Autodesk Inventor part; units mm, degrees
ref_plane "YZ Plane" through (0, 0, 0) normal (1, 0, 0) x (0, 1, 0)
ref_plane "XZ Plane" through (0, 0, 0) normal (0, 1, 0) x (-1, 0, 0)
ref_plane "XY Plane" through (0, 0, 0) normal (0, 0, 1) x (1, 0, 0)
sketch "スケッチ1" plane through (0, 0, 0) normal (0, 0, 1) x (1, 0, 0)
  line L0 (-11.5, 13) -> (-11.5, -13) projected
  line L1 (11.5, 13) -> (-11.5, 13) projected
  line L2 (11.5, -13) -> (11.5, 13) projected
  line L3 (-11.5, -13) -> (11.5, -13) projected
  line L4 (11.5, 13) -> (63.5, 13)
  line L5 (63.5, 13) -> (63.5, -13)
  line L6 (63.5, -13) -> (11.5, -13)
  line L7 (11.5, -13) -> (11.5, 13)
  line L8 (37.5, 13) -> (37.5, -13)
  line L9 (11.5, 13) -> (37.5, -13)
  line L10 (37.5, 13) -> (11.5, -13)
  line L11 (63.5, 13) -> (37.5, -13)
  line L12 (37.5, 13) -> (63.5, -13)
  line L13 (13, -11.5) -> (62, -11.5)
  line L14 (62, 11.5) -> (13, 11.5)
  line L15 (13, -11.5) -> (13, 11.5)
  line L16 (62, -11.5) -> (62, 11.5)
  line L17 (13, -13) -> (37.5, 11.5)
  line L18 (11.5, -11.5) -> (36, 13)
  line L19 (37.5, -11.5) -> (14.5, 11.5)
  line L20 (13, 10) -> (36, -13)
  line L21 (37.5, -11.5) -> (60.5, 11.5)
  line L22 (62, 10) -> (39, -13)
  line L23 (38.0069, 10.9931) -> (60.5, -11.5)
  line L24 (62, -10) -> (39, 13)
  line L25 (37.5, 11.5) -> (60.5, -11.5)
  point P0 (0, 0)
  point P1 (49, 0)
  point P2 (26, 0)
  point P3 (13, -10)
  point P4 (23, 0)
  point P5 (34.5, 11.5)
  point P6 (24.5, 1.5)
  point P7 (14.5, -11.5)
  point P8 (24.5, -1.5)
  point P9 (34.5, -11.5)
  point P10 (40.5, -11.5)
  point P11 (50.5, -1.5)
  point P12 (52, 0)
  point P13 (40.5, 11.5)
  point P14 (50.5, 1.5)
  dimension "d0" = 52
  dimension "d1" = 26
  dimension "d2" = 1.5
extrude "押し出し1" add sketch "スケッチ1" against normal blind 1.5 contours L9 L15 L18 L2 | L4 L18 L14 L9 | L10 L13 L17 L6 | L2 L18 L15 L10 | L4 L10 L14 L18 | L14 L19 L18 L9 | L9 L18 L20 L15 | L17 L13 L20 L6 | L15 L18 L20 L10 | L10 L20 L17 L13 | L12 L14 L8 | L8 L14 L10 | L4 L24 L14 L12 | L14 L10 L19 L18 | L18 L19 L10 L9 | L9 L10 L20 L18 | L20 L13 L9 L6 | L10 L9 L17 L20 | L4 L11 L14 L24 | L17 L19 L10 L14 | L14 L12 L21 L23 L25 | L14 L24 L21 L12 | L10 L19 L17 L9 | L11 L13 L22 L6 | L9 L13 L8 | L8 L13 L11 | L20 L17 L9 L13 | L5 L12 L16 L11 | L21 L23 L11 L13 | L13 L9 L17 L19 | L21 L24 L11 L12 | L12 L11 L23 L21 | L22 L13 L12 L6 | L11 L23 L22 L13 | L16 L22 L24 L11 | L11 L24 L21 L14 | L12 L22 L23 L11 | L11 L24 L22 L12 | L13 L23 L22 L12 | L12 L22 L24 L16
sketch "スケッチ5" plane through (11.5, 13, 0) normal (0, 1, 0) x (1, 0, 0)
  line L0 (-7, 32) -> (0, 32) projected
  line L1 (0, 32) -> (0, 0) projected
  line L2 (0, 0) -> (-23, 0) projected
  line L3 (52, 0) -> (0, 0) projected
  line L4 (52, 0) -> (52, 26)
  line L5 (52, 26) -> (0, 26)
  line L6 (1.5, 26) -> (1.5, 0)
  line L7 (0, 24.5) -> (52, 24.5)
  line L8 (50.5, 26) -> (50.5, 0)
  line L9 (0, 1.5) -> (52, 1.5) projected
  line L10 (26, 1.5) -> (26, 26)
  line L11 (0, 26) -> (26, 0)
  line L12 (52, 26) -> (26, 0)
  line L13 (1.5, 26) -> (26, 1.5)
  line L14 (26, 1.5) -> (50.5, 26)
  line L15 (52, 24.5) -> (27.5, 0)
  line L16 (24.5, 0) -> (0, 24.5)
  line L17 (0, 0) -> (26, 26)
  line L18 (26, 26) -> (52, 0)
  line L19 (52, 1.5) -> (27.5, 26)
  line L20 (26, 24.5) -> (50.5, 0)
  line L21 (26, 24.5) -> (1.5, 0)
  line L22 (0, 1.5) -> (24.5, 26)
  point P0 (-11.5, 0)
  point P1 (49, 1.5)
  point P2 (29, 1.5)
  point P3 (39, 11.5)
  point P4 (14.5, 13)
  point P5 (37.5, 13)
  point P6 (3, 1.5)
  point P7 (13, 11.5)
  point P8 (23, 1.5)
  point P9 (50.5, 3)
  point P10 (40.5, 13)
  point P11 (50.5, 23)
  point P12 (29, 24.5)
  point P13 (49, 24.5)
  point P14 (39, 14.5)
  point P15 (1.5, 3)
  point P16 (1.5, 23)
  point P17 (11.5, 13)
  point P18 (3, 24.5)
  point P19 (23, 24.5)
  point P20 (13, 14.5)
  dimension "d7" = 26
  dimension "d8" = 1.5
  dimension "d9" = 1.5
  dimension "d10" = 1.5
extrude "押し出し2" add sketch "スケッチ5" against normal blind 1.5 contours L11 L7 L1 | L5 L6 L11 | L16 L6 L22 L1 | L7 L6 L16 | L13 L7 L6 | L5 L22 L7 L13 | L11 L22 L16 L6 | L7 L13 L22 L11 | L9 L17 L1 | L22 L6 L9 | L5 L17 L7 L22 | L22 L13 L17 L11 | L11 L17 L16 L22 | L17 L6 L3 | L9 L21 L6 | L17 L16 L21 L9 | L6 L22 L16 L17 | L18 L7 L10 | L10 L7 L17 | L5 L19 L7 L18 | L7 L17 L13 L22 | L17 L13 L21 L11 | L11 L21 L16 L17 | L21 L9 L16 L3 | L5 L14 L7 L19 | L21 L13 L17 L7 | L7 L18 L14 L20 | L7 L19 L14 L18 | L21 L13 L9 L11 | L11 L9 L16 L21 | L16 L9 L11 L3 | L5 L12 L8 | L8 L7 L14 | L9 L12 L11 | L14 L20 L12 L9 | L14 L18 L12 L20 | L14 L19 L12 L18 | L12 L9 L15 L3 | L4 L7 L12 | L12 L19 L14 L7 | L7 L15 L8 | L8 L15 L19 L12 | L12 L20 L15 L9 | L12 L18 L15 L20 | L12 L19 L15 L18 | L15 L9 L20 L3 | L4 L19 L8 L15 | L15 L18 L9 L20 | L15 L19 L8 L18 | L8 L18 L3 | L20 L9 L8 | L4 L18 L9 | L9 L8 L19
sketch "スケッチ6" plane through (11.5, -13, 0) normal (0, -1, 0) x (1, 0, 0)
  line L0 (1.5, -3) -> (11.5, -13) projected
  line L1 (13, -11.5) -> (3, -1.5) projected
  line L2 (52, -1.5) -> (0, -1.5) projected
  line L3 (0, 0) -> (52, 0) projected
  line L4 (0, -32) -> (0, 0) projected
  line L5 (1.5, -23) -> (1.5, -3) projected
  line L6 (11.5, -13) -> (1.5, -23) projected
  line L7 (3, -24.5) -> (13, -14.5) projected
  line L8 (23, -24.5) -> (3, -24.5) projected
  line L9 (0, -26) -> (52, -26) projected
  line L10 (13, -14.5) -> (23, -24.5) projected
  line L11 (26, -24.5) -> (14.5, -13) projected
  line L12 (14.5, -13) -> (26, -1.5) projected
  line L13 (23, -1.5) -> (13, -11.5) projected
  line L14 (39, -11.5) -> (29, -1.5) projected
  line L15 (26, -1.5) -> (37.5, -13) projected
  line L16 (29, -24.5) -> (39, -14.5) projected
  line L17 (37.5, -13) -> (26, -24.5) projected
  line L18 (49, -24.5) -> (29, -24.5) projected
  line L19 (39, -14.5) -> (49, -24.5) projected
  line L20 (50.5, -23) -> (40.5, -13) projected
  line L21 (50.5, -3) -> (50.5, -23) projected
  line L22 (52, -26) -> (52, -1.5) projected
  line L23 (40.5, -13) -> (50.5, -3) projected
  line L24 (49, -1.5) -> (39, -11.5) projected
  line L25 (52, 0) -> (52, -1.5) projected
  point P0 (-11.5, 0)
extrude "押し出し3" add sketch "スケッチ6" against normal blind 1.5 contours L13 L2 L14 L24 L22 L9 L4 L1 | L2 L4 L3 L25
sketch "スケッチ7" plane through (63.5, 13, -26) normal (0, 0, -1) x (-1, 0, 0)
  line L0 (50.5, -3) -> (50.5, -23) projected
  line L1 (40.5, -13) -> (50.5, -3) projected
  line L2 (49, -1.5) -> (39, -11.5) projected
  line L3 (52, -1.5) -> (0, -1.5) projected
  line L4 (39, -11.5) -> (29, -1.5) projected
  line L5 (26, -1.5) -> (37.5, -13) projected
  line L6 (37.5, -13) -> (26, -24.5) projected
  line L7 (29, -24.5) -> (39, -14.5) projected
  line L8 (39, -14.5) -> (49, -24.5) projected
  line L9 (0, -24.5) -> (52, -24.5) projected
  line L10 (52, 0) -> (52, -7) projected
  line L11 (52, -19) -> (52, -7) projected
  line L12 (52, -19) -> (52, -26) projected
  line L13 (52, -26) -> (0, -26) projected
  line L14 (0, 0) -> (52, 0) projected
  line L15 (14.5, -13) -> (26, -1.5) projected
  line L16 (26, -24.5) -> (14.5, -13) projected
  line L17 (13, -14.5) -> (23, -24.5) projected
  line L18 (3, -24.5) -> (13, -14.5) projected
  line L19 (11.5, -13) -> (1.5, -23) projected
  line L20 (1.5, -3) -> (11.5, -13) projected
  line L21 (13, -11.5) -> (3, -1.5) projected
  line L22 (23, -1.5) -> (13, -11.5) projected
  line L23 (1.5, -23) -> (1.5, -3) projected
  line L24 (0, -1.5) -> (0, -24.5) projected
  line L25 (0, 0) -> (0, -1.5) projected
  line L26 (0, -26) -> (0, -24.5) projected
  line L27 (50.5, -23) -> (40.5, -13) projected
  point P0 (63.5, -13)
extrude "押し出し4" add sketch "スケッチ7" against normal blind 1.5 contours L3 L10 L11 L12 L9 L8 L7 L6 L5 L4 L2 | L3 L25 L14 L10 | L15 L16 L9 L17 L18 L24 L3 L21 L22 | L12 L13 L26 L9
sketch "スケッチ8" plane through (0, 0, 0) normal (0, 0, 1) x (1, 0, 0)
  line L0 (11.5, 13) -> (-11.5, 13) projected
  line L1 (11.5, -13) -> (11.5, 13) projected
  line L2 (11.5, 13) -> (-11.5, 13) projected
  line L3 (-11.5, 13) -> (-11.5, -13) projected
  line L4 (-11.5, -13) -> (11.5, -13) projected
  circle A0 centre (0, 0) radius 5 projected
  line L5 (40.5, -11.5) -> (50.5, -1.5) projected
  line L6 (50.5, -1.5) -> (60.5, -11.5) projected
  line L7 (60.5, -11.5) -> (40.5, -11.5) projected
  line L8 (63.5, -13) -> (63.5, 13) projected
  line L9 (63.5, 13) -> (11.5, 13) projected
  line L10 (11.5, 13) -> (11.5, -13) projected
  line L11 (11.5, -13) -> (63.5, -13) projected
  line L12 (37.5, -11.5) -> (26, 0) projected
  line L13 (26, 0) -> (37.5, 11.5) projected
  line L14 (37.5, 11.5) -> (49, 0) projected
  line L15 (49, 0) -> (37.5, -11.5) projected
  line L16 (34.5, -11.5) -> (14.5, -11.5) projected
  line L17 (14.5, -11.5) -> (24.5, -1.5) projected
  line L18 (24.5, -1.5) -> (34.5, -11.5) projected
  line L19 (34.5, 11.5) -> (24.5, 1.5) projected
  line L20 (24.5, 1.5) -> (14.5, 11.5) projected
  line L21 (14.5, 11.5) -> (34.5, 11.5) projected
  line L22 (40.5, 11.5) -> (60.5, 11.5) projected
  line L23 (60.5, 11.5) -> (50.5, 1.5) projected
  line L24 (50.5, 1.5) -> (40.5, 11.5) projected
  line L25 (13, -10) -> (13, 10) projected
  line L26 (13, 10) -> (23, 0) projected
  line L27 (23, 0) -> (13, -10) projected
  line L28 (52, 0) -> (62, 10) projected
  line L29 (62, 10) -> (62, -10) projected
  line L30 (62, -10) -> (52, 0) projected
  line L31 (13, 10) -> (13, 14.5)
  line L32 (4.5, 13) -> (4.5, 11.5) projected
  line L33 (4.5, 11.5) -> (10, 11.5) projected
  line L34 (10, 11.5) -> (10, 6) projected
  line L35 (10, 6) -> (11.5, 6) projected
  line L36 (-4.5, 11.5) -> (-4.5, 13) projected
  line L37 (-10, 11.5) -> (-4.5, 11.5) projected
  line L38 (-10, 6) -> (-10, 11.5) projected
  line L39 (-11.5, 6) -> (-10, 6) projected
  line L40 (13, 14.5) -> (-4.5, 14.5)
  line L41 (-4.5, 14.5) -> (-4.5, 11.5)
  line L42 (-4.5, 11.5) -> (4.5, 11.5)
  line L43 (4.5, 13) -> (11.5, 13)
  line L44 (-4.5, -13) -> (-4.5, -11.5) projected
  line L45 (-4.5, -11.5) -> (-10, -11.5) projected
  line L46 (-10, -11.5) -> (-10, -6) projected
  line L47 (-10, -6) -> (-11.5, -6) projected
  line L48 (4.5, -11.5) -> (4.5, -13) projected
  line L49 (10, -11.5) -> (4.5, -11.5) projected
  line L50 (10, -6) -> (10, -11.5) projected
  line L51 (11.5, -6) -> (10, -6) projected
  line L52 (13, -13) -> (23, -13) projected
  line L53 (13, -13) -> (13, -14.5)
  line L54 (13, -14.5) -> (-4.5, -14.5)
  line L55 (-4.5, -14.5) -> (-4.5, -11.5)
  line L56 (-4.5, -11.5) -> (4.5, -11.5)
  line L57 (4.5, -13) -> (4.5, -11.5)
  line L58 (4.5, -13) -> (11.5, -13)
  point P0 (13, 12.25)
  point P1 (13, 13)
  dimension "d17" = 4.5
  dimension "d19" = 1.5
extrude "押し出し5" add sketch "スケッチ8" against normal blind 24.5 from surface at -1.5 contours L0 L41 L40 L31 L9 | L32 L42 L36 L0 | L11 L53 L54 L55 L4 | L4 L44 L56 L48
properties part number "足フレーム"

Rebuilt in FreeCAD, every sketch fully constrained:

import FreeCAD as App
import Part
import Sketcher

doc = App.newDocument("Part")
body = doc.addObject("PartDesign::Body", "Body")

# Sketch on XY plane
sketch1 = body.newObject("Sketcher::SketchObject", "Sketch")
sketch1.AttachmentSupport = (doc.getObject("XY_Plane"), [""])
sketch1.MapMode = "FlatFace"
sketch1.addGeometry(Part.LineSegment(App.Vector(12, 13, 0), App.Vector(12, -13, 0)), False)
sketch1.addGeometry(Part.LineSegment(App.Vector(12, -13, 0), App.Vector(64, -13, 0)), False)
sketch1.addGeometry(Part.LineSegment(App.Vector(64, -13, 0), App.Vector(64, 13, 0)), False)
sketch1.addGeometry(Part.LineSegment(App.Vector(64, 13, 0), App.Vector(12, 13, 0)), False)
sketch1.addGeometry(Part.LineSegment(App.Vector(13, -10, 0), App.Vector(13, 10, 0)), False)
sketch1.addGeometry(Part.LineSegment(App.Vector(13, 10, 0), App.Vector(23, 0, 0)), False)
sketch1.addGeometry(Part.LineSegment(App.Vector(23, 0, 0), App.Vector(13, -10, 0)), False)
sketch1.addGeometry(Part.LineSegment(App.Vector(14, 12, 0), App.Vector(34, 12, 0)), False)
sketch1.addGeometry(Part.LineSegment(App.Vector(34, 12, 0), App.Vector(24, 2, 0)), False)
sketch1.addGeometry(Part.LineSegment(App.Vector(24, 2, 0), App.Vector(14, 12, 0)), False)
sketch1.addGeometry(Part.LineSegment(App.Vector(14, -12, 0), App.Vector(24, -2, 0)), False)
sketch1.addGeometry(Part.LineSegment(App.Vector(24, -2, 0), App.Vector(34, -12, 0)), False)
sketch1.addGeometry(Part.LineSegment(App.Vector(34, -12, 0), App.Vector(14, -12, 0)), False)
sketch1.addGeometry(Part.LineSegment(App.Vector(26, 0, 0), App.Vector(38, 12, 0)), False)
sketch1.addGeometry(Part.LineSegment(App.Vector(38, 12, 0), App.Vector(49, 0, 0)), False)
sketch1.addGeometry(Part.LineSegment(App.Vector(49, 0, 0), App.Vector(38, -12, 0)), False)
sketch1.addGeometry(Part.LineSegment(App.Vector(38, -12, 0), App.Vector(26, 0, 0)), False)
sketch1.addGeometry(Part.LineSegment(App.Vector(40, 12, 0), App.Vector(60, 12, 0)), False)
sketch1.addGeometry(Part.LineSegment(App.Vector(60, 12, 0), App.Vector(50, 2, 0)), False)
sketch1.addGeometry(Part.LineSegment(App.Vector(50, 2, 0), App.Vector(40, 12, 0)), False)
sketch1.addGeometry(Part.LineSegment(App.Vector(62, 10, 0), App.Vector(62, -10, 0)), False)
sketch1.addGeometry(Part.LineSegment(App.Vector(62, -10, 0), App.Vector(52, 0, 0)), False)
sketch1.addGeometry(Part.LineSegment(App.Vector(52, 0, 0), App.Vector(62, 10, 0)), False)
sketch1.addGeometry(Part.LineSegment(App.Vector(60, -12, 0), App.Vector(40, -12, 0)), False)
sketch1.addGeometry(Part.LineSegment(App.Vector(40, -12, 0), App.Vector(50, -2, 0)), False)
sketch1.addGeometry(Part.LineSegment(App.Vector(50, -2, 0), App.Vector(60, -12, 0)), False)
sketch1.addConstraint(Sketcher.Constraint("Coincident", 0, 2, 1, 1))
sketch1.addConstraint(Sketcher.Constraint("Coincident", 1, 2, 2, 1))
sketch1.addConstraint(Sketcher.Constraint("Coincident", 2, 2, 3, 1))
sketch1.addConstraint(Sketcher.Constraint("Coincident", 3, 2, 0, 1))
sketch1.addConstraint(Sketcher.Constraint("Coincident", 4, 2, 5, 1))
sketch1.addConstraint(Sketcher.Constraint("Coincident", 5, 2, 6, 1))
sketch1.addConstraint(Sketcher.Constraint("Coincident", 6, 2, 4, 1))
sketch1.addConstraint(Sketcher.Constraint("Coincident", 7, 2, 8, 1))
sketch1.addConstraint(Sketcher.Constraint("Coincident", 8, 2, 9, 1))
sketch1.addConstraint(Sketcher.Constraint("Coincident", 9, 2, 7, 1))
sketch1.addConstraint(Sketcher.Constraint("Coincident", 10, 2, 11, 1))
sketch1.addConstraint(Sketcher.Constraint("Coincident", 11, 2, 12, 1))
sketch1.addConstraint(Sketcher.Constraint("Coincident", 12, 2, 10, 1))
sketch1.addConstraint(Sketcher.Constraint("Coincident", 13, 2, 14, 1))
sketch1.addConstraint(Sketcher.Constraint("Coincident", 14, 2, 15, 1))
sketch1.addConstraint(Sketcher.Constraint("Coincident", 15, 2, 16, 1))
sketch1.addConstraint(Sketcher.Constraint("Coincident", 16, 2, 13, 1))
sketch1.addConstraint(Sketcher.Constraint("Coincident", 17, 2, 18, 1))
sketch1.addConstraint(Sketcher.Constraint("Coincident", 18, 2, 19, 1))
sketch1.addConstraint(Sketcher.Constraint("Coincident", 19, 2, 17, 1))
sketch1.addConstraint(Sketcher.Constraint("Coincident", 20, 2, 21, 1))
sketch1.addConstraint(Sketcher.Constraint("Coincident", 21, 2, 22, 1))
sketch1.addConstraint(Sketcher.Constraint("Coincident", 22, 2, 20, 1))
sketch1.addConstraint(Sketcher.Constraint("Coincident", 23, 2, 24, 1))
sketch1.addConstraint(Sketcher.Constraint("Coincident", 24, 2, 25, 1))
sketch1.addConstraint(Sketcher.Constraint("Coincident", 25, 2, 23, 1))
sketch1.addConstraint(Sketcher.Constraint("Vertical", 0))
sketch1.addConstraint(Sketcher.Constraint("Horizontal", 1))
sketch1.addConstraint(Sketcher.Constraint("Vertical", 2))
sketch1.addConstraint(Sketcher.Constraint("Horizontal", 3))
sketch1.addConstraint(Sketcher.Constraint("Vertical", 4))
sketch1.addConstraint(Sketcher.Constraint("Horizontal", 7))
sketch1.addConstraint(Sketcher.Constraint("Horizontal", 12))
sketch1.addConstraint(Sketcher.Constraint("Horizontal", 17))
sketch1.addConstraint(Sketcher.Constraint("Vertical", 20))
sketch1.addConstraint(Sketcher.Constraint("Horizontal", 23))
sketch1.addConstraint(Sketcher.Constraint("Symmetric", 8, 2, 10, 2, -1))
sketch1.addConstraint(Sketcher.Constraint("Symmetric", 7, 2, 11, 2, -1))
sketch1.addConstraint(Sketcher.Constraint("Symmetric", 13, 2, 15, 2, -1))
sketch1.addConstraint(Sketcher.Constraint("Symmetric", 19, 2, 23, 2, -1))
sketch1.addConstraint(Sketcher.Constraint("Symmetric", 18, 2, 24, 2, -1))
sketch1.addConstraint(Sketcher.Constraint("PointOnObject", 5, 2, -1))
sketch1.addConstraint(Sketcher.Constraint("PointOnObject", 14, 2, -1))
sketch1.addConstraint(Sketcher.Constraint("PointOnObject", 16, 2, -1))
sketch1.addConstraint(Sketcher.Constraint("PointOnObject", 21, 2, -1))
sketch1.addConstraint(Sketcher.Constraint("Perpendicular", 5, 6))
sketch1.addConstraint(Sketcher.Constraint("Parallel", 6, 8))
sketch1.addConstraint(Sketcher.Constraint("Perpendicular", 8, 9))
sketch1.addConstraint(Sketcher.Constraint("Perpendicular", 9, 10))
sketch1.addConstraint(Sketcher.Constraint("Perpendicular", 10, 11))
sketch1.addConstraint(Sketcher.Constraint("Perpendicular", 11, 13))
sketch1.addConstraint(Sketcher.Constraint("Perpendicular", 13, 14))
sketch1.addConstraint(Sketcher.Constraint("Perpendicular", 16, 18))
sketch1.addConstraint(Sketcher.Constraint("Perpendicular", 18, 19))
sketch1.addConstraint(Sketcher.Constraint("Parallel", 19, 21))
sketch1.addConstraint(Sketcher.Constraint("Perpendicular", 21, 22))
sketch1.addConstraint(Sketcher.Constraint("Perpendicular", 24, 25))
sketch1.addConstraint(Sketcher.Constraint("Horizontal", 9, 2, 13, 2))
sketch1.addConstraint(Sketcher.Constraint("Horizontal", 13, 2, 17, 2))
sketch1.addConstraint(Sketcher.Constraint("Horizontal", 8, 2, 18, 2))
sketch1.addConstraint(Sketcher.Constraint("Horizontal", 6, 2, 20, 2))
sketch1.addConstraint(Sketcher.Constraint("Equal", 23, 4))
sketch1.addConstraint(Sketcher.Constraint("DistanceX", 1, 1, 1, 2, 52.0))
sketch1.addConstraint(Sketcher.Constraint("DistanceY", 0, 2, 0, 1, 26.0))
sketch1.addConstraint(Sketcher.Constraint("DistanceX", -1, 1, 16, 2, 26.0))
sketch1.addConstraint(Sketcher.Constraint("DistanceX", -1, 1, 21, 2, 52.0))
sketch1.addConstraint(Sketcher.Constraint("DistanceX", 7, 2, 17, 2, 26.0))
sketch1.addConstraint(Sketcher.Constraint("DistanceY", -1, 1, 8, 2, 1.5))
sketch1.addConstraint(Sketcher.Constraint("DistanceX", 3, 2, 4, 2, 1.5))
sketch1.addConstraint(Sketcher.Constraint("DistanceY", 7, 2, 3, 2, 1.5))
sketch1.addConstraint(Sketcher.Constraint("DistanceX", 5, 2, 8, 2, 1.5))
sketch1.addConstraint(Sketcher.Constraint("DistanceY", 0, 2, 12, 2, 1.5))
sketch1.addConstraint(Sketcher.Constraint("DistanceX", 8, 2, 16, 2, 1.5))
pad1 = body.newObject("PartDesign::Pad", "Pad")
pad1.Profile = sketch1
pad1.Length = 1.5
pad1.Reversed = True

# Sketch on XZ plane
sketch2 = body.newObject("Sketcher::SketchObject", "Sketch001")
sketch2.AttachmentSupport = (doc.getObject("XZ_Plane"), [""])
sketch2.MapMode = "FlatFace"
sketch2.AttachmentOffset = App.Placement(App.Vector(0, 0, -13), App.Rotation())
sketch2.addGeometry(Part.LineSegment(App.Vector(12, -26, 0), App.Vector(12, 0, 0)), False)
sketch2.addGeometry(Part.LineSegment(App.Vector(12, 0, 0), App.Vector(64, 0, 0)), False)
sketch2.addGeometry(Part.LineSegment(App.Vector(64, 0, 0), App.Vector(64, -26, 0)), False)
sketch2.addGeometry(Part.LineSegment(App.Vector(64, -26, 0), App.Vector(12, -26, 0)), False)
sketch2.addGeometry(Part.LineSegment(App.Vector(13, -3, 0), App.Vector(13, -23, 0)), False)
sketch2.addGeometry(Part.LineSegment(App.Vector(13, -23, 0), App.Vector(23, -13, 0)), False)
sketch2.addGeometry(Part.LineSegment(App.Vector(23, -13, 0), App.Vector(13, -3, 0)), False)
sketch2.addGeometry(Part.LineSegment(App.Vector(14, -24, 0), App.Vector(34, -24, 0)), False)
sketch2.addGeometry(Part.LineSegment(App.Vector(34, -24, 0), App.Vector(24, -14, 0)), False)
sketch2.addGeometry(Part.LineSegment(App.Vector(24, -14, 0), App.Vector(14, -24, 0)), False)
sketch2.addGeometry(Part.LineSegment(App.Vector(14, -2, 0), App.Vector(24, -12, 0)), False)
sketch2.addGeometry(Part.LineSegment(App.Vector(24, -12, 0), App.Vector(34, -2, 0)), False)
sketch2.addGeometry(Part.LineSegment(App.Vector(34, -2, 0), App.Vector(14, -2, 0)), False)
sketch2.addGeometry(Part.LineSegment(App.Vector(26, -13, 0), App.Vector(38, -24, 0)), False)
sketch2.addGeometry(Part.LineSegment(App.Vector(38, -24, 0), App.Vector(49, -13, 0)), False)
sketch2.addGeometry(Part.LineSegment(App.Vector(49, -13, 0), App.Vector(38, -2, 0)), False)
sketch2.addGeometry(Part.LineSegment(App.Vector(38, -2, 0), App.Vector(26, -13, 0)), False)
sketch2.addGeometry(Part.LineSegment(App.Vector(40, -24, 0), App.Vector(60, -24, 0)), False)
sketch2.addGeometry(Part.LineSegment(App.Vector(60, -24, 0), App.Vector(50, -14, 0)), False)
sketch2.addGeometry(Part.LineSegment(App.Vector(50, -14, 0), App.Vector(40, -24, 0)), False)
sketch2.addGeometry(Part.LineSegment(App.Vector(40, -2, 0), App.Vector(50, -12, 0)), False)
sketch2.addGeometry(Part.LineSegment(App.Vector(50, -12, 0), App.Vector(60, -2, 0)), False)
sketch2.addGeometry(Part.LineSegment(App.Vector(60, -2, 0), App.Vector(40, -2, 0)), False)
sketch2.addGeometry(Part.LineSegment(App.Vector(52, -13, 0), App.Vector(62, -23, 0)), False)
sketch2.addGeometry(Part.LineSegment(App.Vector(62, -23, 0), App.Vector(62, -3, 0)), False)
sketch2.addGeometry(Part.LineSegment(App.Vector(62, -3, 0), App.Vector(52, -13, 0)), False)
sketch2.addConstraint(Sketcher.Constraint("Coincident", 0, 2, 1, 1))
sketch2.addConstraint(Sketcher.Constraint("Coincident", 1, 2, 2, 1))
sketch2.addConstraint(Sketcher.Constraint("Coincident", 2, 2, 3, 1))
sketch2.addConstraint(Sketcher.Constraint("Coincident", 3, 2, 0, 1))
sketch2.addConstraint(Sketcher.Constraint("Coincident", 4, 2, 5, 1))
sketch2.addConstraint(Sketcher.Constraint("Coincident", 5, 2, 6, 1))
sketch2.addConstraint(Sketcher.Constraint("Coincident", 6, 2, 4, 1))
sketch2.addConstraint(Sketcher.Constraint("Coincident", 7, 2, 8, 1))
sketch2.addConstraint(Sketcher.Constraint("Coincident", 8, 2, 9, 1))
sketch2.addConstraint(Sketcher.Constraint("Coincident", 9, 2, 7, 1))
sketch2.addConstraint(Sketcher.Constraint("Coincident", 10, 2, 11, 1))
sketch2.addConstraint(Sketcher.Constraint("Coincident", 11, 2, 12, 1))
sketch2.addConstraint(Sketcher.Constraint("Coincident", 12, 2, 10, 1))
sketch2.addConstraint(Sketcher.Constraint("Coincident", 13, 2, 14, 1))
sketch2.addConstraint(Sketcher.Constraint("Coincident", 14, 2, 15, 1))
sketch2.addConstraint(Sketcher.Constraint("Coincident", 15, 2, 16, 1))
sketch2.addConstraint(Sketcher.Constraint("Coincident", 16, 2, 13, 1))
sketch2.addConstraint(Sketcher.Constraint("Coincident", 17, 2, 18, 1))
sketch2.addConstraint(Sketcher.Constraint("Coincident", 18, 2, 19, 1))
sketch2.addConstraint(Sketcher.Constraint("Coincident", 19, 2, 17, 1))
sketch2.addConstraint(Sketcher.Constraint("Coincident", 20, 2, 21, 1))
sketch2.addConstraint(Sketcher.Constraint("Coincident", 21, 2, 22, 1))
sketch2.addConstraint(Sketcher.Constraint("Coincident", 22, 2, 20, 1))
sketch2.addConstraint(Sketcher.Constraint("Coincident", 23, 2, 24, 1))
sketch2.addConstraint(Sketcher.Constraint("Coincident", 24, 2, 25, 1))
sketch2.addConstraint(Sketcher.Constraint("Coincident", 25, 2, 23, 1))
sketch2.addConstraint(Sketcher.Constraint("Vertical", 0))
sketch2.addConstraint(Sketcher.Constraint("Horizontal", 1))
sketch2.addConstraint(Sketcher.Constraint("Vertical", 2))
sketch2.addConstraint(Sketcher.Constraint("Horizontal", 3))
sketch2.addConstraint(Sketcher.Constraint("Vertical", 4))
sketch2.addConstraint(Sketcher.Constraint("Horizontal", 7))
sketch2.addConstraint(Sketcher.Constraint("Horizontal", 12))
sketch2.addConstraint(Sketcher.Constraint("Horizontal", 17))
sketch2.addConstraint(Sketcher.Constraint("Horizontal", 22))
sketch2.addConstraint(Sketcher.Constraint("Vertical", 24))
sketch2.addConstraint(Sketcher.Constraint("PointOnObject", 0, 2, -1))
sketch2.addConstraint(Sketcher.Constraint("Perpendicular", 5, 6))
sketch2.addConstraint(Sketcher.Constraint("Parallel", 6, 8))
sketch2.addConstraint(Sketcher.Constraint("Perpendicular", 8, 9))
sketch2.addConstraint(Sketcher.Constraint("Perpendicular", 9, 10))
sketch2.addConstraint(Sketcher.Constraint("Perpendicular", 10, 11))
sketch2.addConstraint(Sketcher.Constraint("Perpendicular", 11, 13))
sketch2.addConstraint(Sketcher.Constraint("Perpendicular", 13, 14))
sketch2.addConstraint(Sketcher.Constraint("Perpendicular", 14, 15))
sketch2.addConstraint(Sketcher.Constraint("Perpendicular", 15, 16))
sketch2.addConstraint(Sketcher.Constraint("Perpendicular", 16, 18))
sketch2.addConstraint(Sketcher.Constraint("Perpendicular", 18, 19))
sketch2.addConstraint(Sketcher.Constraint("Perpendicular", 19, 20))
sketch2.addConstraint(Sketcher.Constraint("Perpendicular", 20, 21))
sketch2.addConstraint(Sketcher.Constraint("Perpendicular", 21, 23))
sketch2.addConstraint(Sketcher.Constraint("Perpendicular", 23, 25))
sketch2.addConstraint(Sketcher.Constraint("Horizontal", 9, 2, 13, 2))
sketch2.addConstraint(Sketcher.Constraint("Horizontal", 5, 2, 14, 2))
sketch2.addConstraint(Sketcher.Constraint("Horizontal", 12, 2, 15, 2))
sketch2.addConstraint(Sketcher.Constraint("Horizontal", 14, 2, 16, 2))
sketch2.addConstraint(Sketcher.Constraint("Horizontal", 13, 2, 17, 2))
sketch2.addConstraint(Sketcher.Constraint("Horizontal", 8, 2, 18, 2))
sketch2.addConstraint(Sketcher.Constraint("Horizontal", 10, 2, 20, 2))
sketch2.addConstraint(Sketcher.Constraint("Horizontal", 15, 2, 21, 2))
sketch2.addConstraint(Sketcher.Constraint("Horizontal", 4, 2, 23, 2))
sketch2.addConstraint(Sketcher.Constraint("Horizontal", 6, 2, 24, 2))
sketch2.addConstraint(Sketcher.Constraint("Horizontal", 16, 2, 25, 2))
sketch2.addConstraint(Sketcher.Constraint("Vertical", 8, 2, 10, 2))
sketch2.addConstraint(Sketcher.Constraint("Vertical", 7, 2, 11, 2))
sketch2.addConstraint(Sketcher.Constraint("Vertical", 18, 2, 20, 2))
sketch2.addConstraint(Sketcher.Constraint("Equal", 22, 4))
sketch2.addConstraint(Sketcher.Constraint("DistanceY", 0, 1, 0, 2, 26.0))
sketch2.addConstraint(Sketcher.Constraint("DistanceX", -1, 1, 16, 2, 26.0))
sketch2.addConstraint(Sketcher.Constraint("DistanceX", 7, 2, 17, 2, 26.0))
sketch2.addConstraint(Sketcher.Constraint("DistanceY", 11, 2, -1, 1, 1.5))
sketch2.addConstraint(Sketcher.Constraint("DistanceX", 3, 2, 4, 2, 1.5))
sketch2.addConstraint(Sketcher.Constraint("DistanceY", 7, 2, 4, 2, 1.5))
sketch2.addConstraint(Sketcher.Constraint("DistanceY", 3, 2, 7, 2, 1.5))
sketch2.addConstraint(Sketcher.Constraint("DistanceX", 5, 2, 8, 2, 1.5))
sketch2.addConstraint(Sketcher.Constraint("DistanceX", 8, 2, 16, 2, 1.5))
sketch2.addConstraint(Sketcher.Constraint("DistanceX", 17, 2, 23, 2, 1.5))
sketch2.addConstraint(Sketcher.Constraint("DistanceX", 23, 2, 2, 2, 1.5))
pad2 = body.newObject("PartDesign::Pad", "Pad001")
pad2.Profile = sketch2
pad2.Length = 1.5

# Sketch on XZ plane
sketch3 = body.newObject("Sketcher::SketchObject", "Sketch002")
sketch3.AttachmentSupport = (doc.getObject("XZ_Plane"), [""])
sketch3.MapMode = "FlatFace"
sketch3.AttachmentOffset = App.Placement(App.Vector(0, 0, 13), App.Rotation())
sketch3.addGeometry(Part.LineSegment(App.Vector(64, -26, 0), App.Vector(64, 0, 0)), False)
sketch3.addGeometry(Part.LineSegment(App.Vector(64, 0, 0), App.Vector(12, 0, 0)), False)
sketch3.addGeometry(Part.LineSegment(App.Vector(12, 0, 0), App.Vector(12, -26, 0)), False)
sketch3.addGeometry(Part.LineSegment(App.Vector(12, -26, 0), App.Vector(64, -26, 0)), False)
sketch3.addGeometry(Part.LineSegment(App.Vector(34, -2, 0), App.Vector(24, -12, 0)), False)
sketch3.addGeometry(Part.LineSegment(App.Vector(24, -12, 0), App.Vector(14, -2, 0)), False)
sketch3.addGeometry(Part.LineSegment(App.Vector(14, -2, 0), App.Vector(34, -2, 0)), False)
sketch3.addGeometry(Part.LineSegment(App.Vector(50, -12, 0), App.Vector(40, -2, 0)), False)
sketch3.addGeometry(Part.LineSegment(App.Vector(40, -2, 0), App.Vector(60, -2, 0)), False)
sketch3.addGeometry(Part.LineSegment(App.Vector(60, -2, 0), App.Vector(50, -12, 0)), False)
sketch3.addGeometry(Part.LineSegment(App.Vector(34, -24, 0), App.Vector(14, -24, 0)), False)
sketch3.addGeometry(Part.LineSegment(App.Vector(14, -24, 0), App.Vector(24, -14, 0)), False)
sketch3.addGeometry(Part.LineSegment(App.Vector(24, -14, 0), App.Vector(34, -24, 0)), False)
sketch3.addGeometry(Part.LineSegment(App.Vector(60, -24, 0), App.Vector(40, -24, 0)), False)
sketch3.addGeometry(Part.LineSegment(App.Vector(40, -24, 0), App.Vector(50, -14, 0)), False)
sketch3.addGeometry(Part.LineSegment(App.Vector(50, -14, 0), App.Vector(60, -24, 0)), False)
sketch3.addGeometry(Part.LineSegment(App.Vector(13, -23, 0), App.Vector(13, -3, 0)), False)
sketch3.addGeometry(Part.LineSegment(App.Vector(13, -3, 0), App.Vector(23, -13, 0)), False)
sketch3.addGeometry(Part.LineSegment(App.Vector(23, -13, 0), App.Vector(13, -23, 0)), False)
sketch3.addGeometry(Part.LineSegment(App.Vector(26, -13, 0), App.Vector(38, -2, 0)), False)
sketch3.addGeometry(Part.LineSegment(App.Vector(38, -2, 0), App.Vector(49, -13, 0)), False)
sketch3.addGeometry(Part.LineSegment(App.Vector(49, -13, 0), App.Vector(38, -24, 0)), False)
sketch3.addGeometry(Part.LineSegment(App.Vector(38, -24, 0), App.Vector(26, -13, 0)), False)
sketch3.addGeometry(Part.LineSegment(App.Vector(62, -3, 0), App.Vector(62, -23, 0)), False)
sketch3.addGeometry(Part.LineSegment(App.Vector(62, -23, 0), App.Vector(52, -13, 0)), False)
sketch3.addGeometry(Part.LineSegment(App.Vector(52, -13, 0), App.Vector(62, -3, 0)), False)
sketch3.addConstraint(Sketcher.Constraint("Coincident", 0, 2, 1, 1))
sketch3.addConstraint(Sketcher.Constraint("Coincident", 1, 2, 2, 1))
sketch3.addConstraint(Sketcher.Constraint("Coincident", 2, 2, 3, 1))
sketch3.addConstraint(Sketcher.Constraint("Coincident", 3, 2, 0, 1))
sketch3.addConstraint(Sketcher.Constraint("Coincident", 4, 2, 5, 1))
sketch3.addConstraint(Sketcher.Constraint("Coincident", 5, 2, 6, 1))
sketch3.addConstraint(Sketcher.Constraint("Coincident", 6, 2, 4, 1))
sketch3.addConstraint(Sketcher.Constraint("Coincident", 7, 2, 8, 1))
sketch3.addConstraint(Sketcher.Constraint("Coincident", 8, 2, 9, 1))
sketch3.addConstraint(Sketcher.Constraint("Coincident", 9, 2, 7, 1))
sketch3.addConstraint(Sketcher.Constraint("Coincident", 10, 2, 11, 1))
sketch3.addConstraint(Sketcher.Constraint("Coincident", 11, 2, 12, 1))
sketch3.addConstraint(Sketcher.Constraint("Coincident", 12, 2, 10, 1))
sketch3.addConstraint(Sketcher.Constraint("Coincident", 13, 2, 14, 1))
sketch3.addConstraint(Sketcher.Constraint("Coincident", 14, 2, 15, 1))
sketch3.addConstraint(Sketcher.Constraint("Coincident", 15, 2, 13, 1))
sketch3.addConstraint(Sketcher.Constraint("Coincident", 16, 2, 17, 1))
sketch3.addConstraint(Sketcher.Constraint("Coincident", 17, 2, 18, 1))
sketch3.addConstraint(Sketcher.Constraint("Coincident", 18, 2, 16, 1))
sketch3.addConstraint(Sketcher.Constraint("Coincident", 19, 2, 20, 1))
sketch3.addConstraint(Sketcher.Constraint("Coincident", 20, 2, 21, 1))
sketch3.addConstraint(Sketcher.Constraint("Coincident", 21, 2, 22, 1))
sketch3.addConstraint(Sketcher.Constraint("Coincident", 22, 2, 19, 1))
sketch3.addConstraint(Sketcher.Constraint("Coincident", 23, 2, 24, 1))
sketch3.addConstraint(Sketcher.Constraint("Coincident", 24, 2, 25, 1))
sketch3.addConstraint(Sketcher.Constraint("Coincident", 25, 2, 23, 1))
sketch3.addConstraint(Sketcher.Constraint("Vertical", 0))
sketch3.addConstraint(Sketcher.Constraint("Horizontal", 1))
sketch3.addConstraint(Sketcher.Constraint("Vertical", 2))
sketch3.addConstraint(Sketcher.Constraint("Horizontal", 3))
sketch3.addConstraint(Sketcher.Constraint("Horizontal", 6))
sketch3.addConstraint(Sketcher.Constraint("Horizontal", 8))
sketch3.addConstraint(Sketcher.Constraint("Horizontal", 10))
sketch3.addConstraint(Sketcher.Constraint("Horizontal", 13))
sketch3.addConstraint(Sketcher.Constraint("Vertical", 16))
sketch3.addConstraint(Sketcher.Constraint("Vertical", 23))
sketch3.addConstraint(Sketcher.Constraint("PointOnObject", 0, 2, -1))
sketch3.addConstraint(Sketcher.Constraint("Perpendicular", 4, 5))
sketch3.addConstraint(Sketcher.Constraint("Parallel", 5, 7))
sketch3.addConstraint(Sketcher.Constraint("Perpendicular", 7, 9))
sketch3.addConstraint(Sketcher.Constraint("Parallel", 9, 11))
sketch3.addConstraint(Sketcher.Constraint("Perpendicular", 11, 12))
sketch3.addConstraint(Sketcher.Constraint("Perpendicular", 12, 14))
sketch3.addConstraint(Sketcher.Constraint("Perpendicular", 14, 15))
sketch3.addConstraint(Sketcher.Constraint("Parallel", 15, 17))
sketch3.addConstraint(Sketcher.Constraint("Perpendicular", 17, 18))
sketch3.addConstraint(Sketcher.Constraint("Parallel", 18, 19))
sketch3.addConstraint(Sketcher.Constraint("Perpendicular", 19, 20))
sketch3.addConstraint(Sketcher.Constraint("Perpendicular", 20, 21))
sketch3.addConstraint(Sketcher.Constraint("Perpendicular", 21, 22))
sketch3.addConstraint(Sketcher.Constraint("Parallel", 22, 24))
sketch3.addConstraint(Sketcher.Constraint("Perpendicular", 24, 25))
sketch3.addConstraint(Sketcher.Constraint("Horizontal", 6, 2, 7, 2))
sketch3.addConstraint(Sketcher.Constraint("Horizontal", 4, 2, 9, 2))
sketch3.addConstraint(Sketcher.Constraint("Horizontal", 12, 2, 13, 2))
sketch3.addConstraint(Sketcher.Constraint("Horizontal", 11, 2, 14, 2))
sketch3.addConstraint(Sketcher.Constraint("Horizontal", 8, 2, 19, 2))
sketch3.addConstraint(Sketcher.Constraint("Horizontal", 17, 2, 20, 2))
sketch3.addConstraint(Sketcher.Constraint("Horizontal", 15, 2, 21, 2))
sketch3.addConstraint(Sketcher.Constraint("Horizontal", 20, 2, 22, 2))
sketch3.addConstraint(Sketcher.Constraint("Horizontal", 18, 2, 23, 2))
sketch3.addConstraint(Sketcher.Constraint("Horizontal", 22, 2, 24, 2))
sketch3.addConstraint(Sketcher.Constraint("Horizontal", 16, 2, 25, 2))
sketch3.addConstraint(Sketcher.Constraint("Vertical", 5, 2, 10, 2))
sketch3.addConstraint(Sketcher.Constraint("Vertical", 4, 2, 11, 2))
sketch3.addConstraint(Sketcher.Constraint("Vertical", 7, 2, 13, 2))
sketch3.addConstraint(Sketcher.Constraint("Equal", 13, 16))
sketch3.addConstraint(Sketcher.Constraint("DistanceX", 1, 2, 1, 1, 52.0))
sketch3.addConstraint(Sketcher.Constraint("DistanceX", 6, 1, 6, 2, 20.0))
sketch3.addConstraint(Sketcher.Constraint("DistanceY", 0, 1, 0, 2, 26.0))
sketch3.addConstraint(Sketcher.Constraint("DistanceX", -1, 1, 16, 2, 13.0))
sketch3.addConstraint(Sketcher.Constraint("DistanceY", 16, 2, -1, 1, 3.0))
sketch3.addConstraint(Sketcher.Constraint("DistanceX", -1, 1, 20, 2, 49.0))
sketch3.addConstraint(Sketcher.Constraint("DistanceX", -1, 1, 22, 2, 26.0))
sketch3.addConstraint(Sketcher.Constraint("DistanceX", -1, 1, 23, 2, 62.0))
sketch3.addConstraint(Sketcher.Constraint("DistanceX", 1, 2, 4, 2, 13.0))
sketch3.addConstraint(Sketcher.Constraint("DistanceX", 6, 2, 7, 2, 6.0))
sketch3.addConstraint(Sketcher.Constraint("DistanceX", 6, 2, 19, 2, 3.0))
pad3 = body.newObject("PartDesign::Pad", "Pad002")
pad3.Profile = sketch3
pad3.Length = 1.5
pad3.Reversed = True

# Sketch on XY plane
sketch4 = body.newObject("Sketcher::SketchObject", "Sketch003")
sketch4.AttachmentSupport = (doc.getObject("XY_Plane"), [""])
sketch4.MapMode = "FlatFace"
sketch4.AttachmentOffset = App.Placement(App.Vector(0, 0, -26), App.Rotation())
sketch4.addGeometry(Part.LineSegment(App.Vector(12, 13, 0), App.Vector(64, 13, 0)), False)
sketch4.addGeometry(Part.LineSegment(App.Vector(64, 13, 0), App.Vector(64, -13, 0)), False)
sketch4.addGeometry(Part.LineSegment(App.Vector(64, -13, 0), App.Vector(12, -13, 0)), False)
sketch4.addGeometry(Part.LineSegment(App.Vector(12, -13, 0), App.Vector(12, 13, 0)), False)
sketch4.addGeometry(Part.LineSegment(App.Vector(24, -2, 0), App.Vector(14, -12, 0)), False)
sketch4.addGeometry(Part.LineSegment(App.Vector(14, -12, 0), App.Vector(34, -12, 0)), False)
sketch4.addGeometry(Part.LineSegment(App.Vector(34, -12, 0), App.Vector(24, -2, 0)), False)
sketch4.addGeometry(Part.LineSegment(App.Vector(26, 0, 0), App.Vector(38, -12, 0)), False)
sketch4.addGeometry(Part.LineSegment(App.Vector(38, -12, 0), App.Vector(49, 0, 0)), False)
sketch4.addGeometry(Part.LineSegment(App.Vector(49, 0, 0), App.Vector(38, 12, 0)), False)
sketch4.addGeometry(Part.LineSegment(App.Vector(38, 12, 0), App.Vector(26, 0, 0)), False)
sketch4.addGeometry(Part.LineSegment(App.Vector(24, 2, 0), App.Vector(34, 12, 0)), False)
sketch4.addGeometry(Part.LineSegment(App.Vector(34, 12, 0), App.Vector(14, 12, 0)), False)
sketch4.addGeometry(Part.LineSegment(App.Vector(14, 12, 0), App.Vector(24, 2, 0)), False)
sketch4.addGeometry(Part.LineSegment(App.Vector(23, 0, 0), App.Vector(13, 10, 0)), False)
sketch4.addGeometry(Part.LineSegment(App.Vector(13, 10, 0), App.Vector(13, -10, 0)), False)
sketch4.addGeometry(Part.LineSegment(App.Vector(13, -10, 0), App.Vector(23, 0, 0)), False)
sketch4.addGeometry(Part.LineSegment(App.Vector(60, 12, 0), App.Vector(40, 12, 0)), False)
sketch4.addGeometry(Part.LineSegment(App.Vector(40, 12, 0), App.Vector(50, 2, 0)), False)
sketch4.addGeometry(Part.LineSegment(App.Vector(50, 2, 0), App.Vector(60, 12, 0)), False)
sketch4.addGeometry(Part.LineSegment(App.Vector(40, -12, 0), App.Vector(60, -12, 0)), False)
sketch4.addGeometry(Part.LineSegment(App.Vector(60, -12, 0), App.Vector(50, -2, 0)), False)
sketch4.addGeometry(Part.LineSegment(App.Vector(50, -2, 0), App.Vector(40, -12, 0)), False)
sketch4.addGeometry(Part.LineSegment(App.Vector(52, 0, 0), App.Vector(62, -10, 0)), False)
sketch4.addGeometry(Part.LineSegment(App.Vector(62, -10, 0), App.Vector(62, 10, 0)), False)
sketch4.addGeometry(Part.LineSegment(App.Vector(62, 10, 0), App.Vector(52, 0, 0)), False)
sketch4.addConstraint(Sketcher.Constraint("Coincident", 0, 2, 1, 1))
sketch4.addConstraint(Sketcher.Constraint("Coincident", 1, 2, 2, 1))
sketch4.addConstraint(Sketcher.Constraint("Coincident", 2, 2, 3, 1))
sketch4.addConstraint(Sketcher.Constraint("Coincident", 3, 2, 0, 1))
sketch4.addConstraint(Sketcher.Constraint("Coincident", 4, 2, 5, 1))
sketch4.addConstraint(Sketcher.Constraint("Coincident", 5, 2, 6, 1))
sketch4.addConstraint(Sketcher.Constraint("Coincident", 6, 2, 4, 1))
sketch4.addConstraint(Sketcher.Constraint("Coincident", 7, 2, 8, 1))
sketch4.addConstraint(Sketcher.Constraint("Coincident", 8, 2, 9, 1))
sketch4.addConstraint(Sketcher.Constraint("Coincident", 9, 2, 10, 1))
sketch4.addConstraint(Sketcher.Constraint("Coincident", 10, 2, 7, 1))
sketch4.addConstraint(Sketcher.Constraint("Coincident", 11, 2, 12, 1))
sketch4.addConstraint(Sketcher.Constraint("Coincident", 12, 2, 13, 1))
sketch4.addConstraint(Sketcher.Constraint("Coincident", 13, 2, 11, 1))
sketch4.addConstraint(Sketcher.Constraint("Coincident", 14, 2, 15, 1))
sketch4.addConstraint(Sketcher.Constraint("Coincident", 15, 2, 16, 1))
sketch4.addConstraint(Sketcher.Constraint("Coincident", 16, 2, 14, 1))
sketch4.addConstraint(Sketcher.Constraint("Coincident", 17, 2, 18, 1))
sketch4.addConstraint(Sketcher.Constraint("Coincident", 18, 2, 19, 1))
sketch4.addConstraint(Sketcher.Constraint("Coincident", 19, 2, 17, 1))
sketch4.addConstraint(Sketcher.Constraint("Coincident", 20, 2, 21, 1))
sketch4.addConstraint(Sketcher.Constraint("Coincident", 21, 2, 22, 1))
sketch4.addConstraint(Sketcher.Constraint("Coincident", 22, 2, 20, 1))
sketch4.addConstraint(Sketcher.Constraint("Coincident", 23, 2, 24, 1))
sketch4.addConstraint(Sketcher.Constraint("Coincident", 24, 2, 25, 1))
sketch4.addConstraint(Sketcher.Constraint("Coincident", 25, 2, 23, 1))
sketch4.addConstraint(Sketcher.Constraint("Horizontal", 0))
sketch4.addConstraint(Sketcher.Constraint("Vertical", 1))
sketch4.addConstraint(Sketcher.Constraint("Horizontal", 2))
sketch4.addConstraint(Sketcher.Constraint("Vertical", 3))
sketch4.addConstraint(Sketcher.Constraint("Horizontal", 5))
sketch4.addConstraint(Sketcher.Constraint("Horizontal", 12))
sketch4.addConstraint(Sketcher.Constraint("Vertical", 15))
sketch4.addConstraint(Sketcher.Constraint("Horizontal", 17))
sketch4.addConstraint(Sketcher.Constraint("Horizontal", 20))
sketch4.addConstraint(Sketcher.Constraint("Vertical", 24))
sketch4.addConstraint(Sketcher.Constraint("Symmetric", 7, 2, 9, 2, -1))
sketch4.addConstraint(Sketcher.Constraint("Symmetric", 5, 2, 11, 2, -1))
sketch4.addConstraint(Sketcher.Constraint("Symmetric", 6, 2, 13, 2, -1))
sketch4.addConstraint(Sketcher.Constraint("Symmetric", 19, 2, 20, 2, -1))
sketch4.addConstraint(Sketcher.Constraint("Symmetric", 18, 2, 21, 2, -1))
sketch4.addConstraint(Sketcher.Constraint("PointOnObject", 8, 2, -1))
sketch4.addConstraint(Sketcher.Constraint("PointOnObject", 10, 2, -1))
sketch4.addConstraint(Sketcher.Constraint("PointOnObject", 16, 2, -1))
sketch4.addConstraint(Sketcher.Constraint("PointOnObject", 25, 2, -1))
sketch4.addConstraint(Sketcher.Constraint("Perpendicular", 4, 6))
sketch4.addConstraint(Sketcher.Constraint("Parallel", 6, 7))
sketch4.addConstraint(Sketcher.Constraint("Perpendicular", 7, 8))
sketch4.addConstraint(Sketcher.Constraint("Perpendicular", 8, 9))
sketch4.addConstraint(Sketcher.Constraint("Perpendicular", 11, 13))
sketch4.addConstraint(Sketcher.Constraint("Parallel", 13, 14))
sketch4.addConstraint(Sketcher.Constraint("Perpendicular", 14, 16))
sketch4.addConstraint(Sketcher.Constraint("Perpendicular", 16, 18))
sketch4.addConstraint(Sketcher.Constraint("Perpendicular", 18, 19))
sketch4.addConstraint(Sketcher.Constraint("Perpendicular", 21, 22))
sketch4.addConstraint(Sketcher.Constraint("Perpendicular", 22, 23))
sketch4.addConstraint(Sketcher.Constraint("Perpendicular", 23, 25))
sketch4.addConstraint(Sketcher.Constraint("Horizontal", 5, 2, 7, 2))
sketch4.addConstraint(Sketcher.Constraint("Horizontal", 12, 2, 17, 2))
sketch4.addConstraint(Sketcher.Constraint("Horizontal", 13, 2, 18, 2))
sketch4.addConstraint(Sketcher.Constraint("Horizontal", 15, 2, 23, 2))
sketch4.addConstraint(Sketcher.Constraint("Equal", 20, 15))
sketch4.addConstraint(Sketcher.Constraint("DistanceX", 0, 1, 0, 2, 52.0))
sketch4.addConstraint(Sketcher.Constraint("DistanceX", 5, 1, 5, 2, 20.0))
sketch4.addConstraint(Sketcher.Constraint("DistanceY", 1, 2, 1, 1, 26.0))
sketch4.addConstraint(Sketcher.Constraint("DistanceY", -1, 1, 0, 2, 13.0))
sketch4.addConstraint(Sketcher.Constraint("DistanceX", -1, 1, 8, 2, 49.0))
sketch4.addConstraint(Sketcher.Constraint("DistanceX", -1, 1, 10, 2, 26.0))
sketch4.addConstraint(Sketcher.Constraint("DistanceX", -1, 1, 14, 2, 13.0))
sketch4.addConstraint(Sketcher.Constraint("DistanceX", -1, 1, 23, 2, 62.0))
sketch4.addConstraint(Sketcher.Constraint("DistanceX", 2, 2, 4, 2, 3.0))
sketch4.addConstraint(Sketcher.Constraint("DistanceX", 5, 2, 7, 2, 3.0))
sketch4.addConstraint(Sketcher.Constraint("DistanceX", 9, 2, 17, 2, 3.0))
pad4 = body.newObject("PartDesign::Pad", "Pad003")
pad4.Profile = sketch4
pad4.Length = 1.5

# Sketch on XY plane
sketch5 = body.newObject("Sketcher::SketchObject", "Sketch004")
sketch5.AttachmentSupport = (doc.getObject("XY_Plane"), [""])
sketch5.MapMode = "FlatFace"
sketch5.AttachmentOffset = App.Placement(App.Vector(0, 0, -1.5), App.Rotation())
sketch5.addGeometry(Part.LineSegment(App.Vector(4.5, 13, 0), App.Vector(13, 13, 0)), False)
sketch5.addGeometry(Part.LineSegment(App.Vector(13, 13, 0), App.Vector(13, 14.5, 0)), False)
sketch5.addGeometry(Part.LineSegment(App.Vector(13, 14.5, 0), App.Vector(-4.5, 14.5, 0)), False)
sketch5.addGeometry(Part.LineSegment(App.Vector(-4.5, 14.5, 0), App.Vector(-4.5, 11.5, 0)), False)
sketch5.addGeometry(Part.LineSegment(App.Vector(-4.5, 11.5, 0), App.Vector(4.5, 11.5, 0)), False)
sketch5.addGeometry(Part.LineSegment(App.Vector(4.5, 11.5, 0), App.Vector(4.5, 13, 0)), False)
sketch5.addGeometry(Part.LineSegment(App.Vector(13, -13, 0), App.Vector(4.5, -13, 0)), False)
sketch5.addGeometry(Part.LineSegment(App.Vector(4.5, -13, 0), App.Vector(4.5, -11.5, 0)), False)
sketch5.addGeometry(Part.LineSegment(App.Vector(4.5, -11.5, 0), App.Vector(-4.5, -11.5, 0)), False)
sketch5.addGeometry(Part.LineSegment(App.Vector(-4.5, -11.5, 0), App.Vector(-4.5, -14.5, 0)), False)
sketch5.addGeometry(Part.LineSegment(App.Vector(-4.5, -14.5, 0), App.Vector(13, -14.5, 0)), False)
sketch5.addGeometry(Part.LineSegment(App.Vector(13, -14.5, 0), App.Vector(13, -13, 0)), False)
sketch5.addConstraint(Sketcher.Constraint("Coincident", 0, 2, 1, 1))
sketch5.addConstraint(Sketcher.Constraint("Coincident", 1, 2, 2, 1))
sketch5.addConstraint(Sketcher.Constraint("Coincident", 2, 2, 3, 1))
sketch5.addConstraint(Sketcher.Constraint("Coincident", 3, 2, 4, 1))
sketch5.addConstraint(Sketcher.Constraint("Coincident", 4, 2, 5, 1))
sketch5.addConstraint(Sketcher.Constraint("Coincident", 5, 2, 0, 1))
sketch5.addConstraint(Sketcher.Constraint("Coincident", 6, 2, 7, 1))
sketch5.addConstraint(Sketcher.Constraint("Coincident", 7, 2, 8, 1))
sketch5.addConstraint(Sketcher.Constraint("Coincident", 8, 2, 9, 1))
sketch5.addConstraint(Sketcher.Constraint("Coincident", 9, 2, 10, 1))
sketch5.addConstraint(Sketcher.Constraint("Coincident", 10, 2, 11, 1))
sketch5.addConstraint(Sketcher.Constraint("Coincident", 11, 2, 6, 1))
sketch5.addConstraint(Sketcher.Constraint("Horizontal", 0))
sketch5.addConstraint(Sketcher.Constraint("Vertical", 1))
sketch5.addConstraint(Sketcher.Constraint("Horizontal", 2))
sketch5.addConstraint(Sketcher.Constraint("Vertical", 3))
sketch5.addConstraint(Sketcher.Constraint("Horizontal", 4))
sketch5.addConstraint(Sketcher.Constraint("Vertical", 5))
sketch5.addConstraint(Sketcher.Constraint("Horizontal", 6))
sketch5.addConstraint(Sketcher.Constraint("Vertical", 7))
sketch5.addConstraint(Sketcher.Constraint("Horizontal", 8))
sketch5.addConstraint(Sketcher.Constraint("Vertical", 9))
sketch5.addConstraint(Sketcher.Constraint("Horizontal", 10))
sketch5.addConstraint(Sketcher.Constraint("Vertical", 11))
sketch5.addConstraint(Sketcher.Constraint("Symmetric", 3, 2, 7, 2, -1, 1))
sketch5.addConstraint(Sketcher.Constraint("Symmetric", 5, 2, 6, 2, -1))
sketch5.addConstraint(Sketcher.Constraint("Symmetric", 2, 2, 9, 2, -1))
sketch5.addConstraint(Sketcher.Constraint("Vertical", 1, 2, 10, 2))
sketch5.addConstraint(Sketcher.Constraint("Equal", 1, 5))
sketch5.addConstraint(Sketcher.Constraint("DistanceY", 1, 1, 1, 2, 1.5))
sketch5.addConstraint(Sketcher.Constraint("DistanceX", 2, 2, -1, 1, 4.5))
sketch5.addConstraint(Sketcher.Constraint("DistanceX", 0, 1, 0, 2, 8.5))
sketch5.addConstraint(Sketcher.Constraint("DistanceY", -1, 1, 0, 2, 13.0))
pad5 = body.newObject("PartDesign::Pad", "Pad004")
pad5.Profile = sketch5
pad5.Length = 24.5
pad5.Reversed = True

doc.recompute()
